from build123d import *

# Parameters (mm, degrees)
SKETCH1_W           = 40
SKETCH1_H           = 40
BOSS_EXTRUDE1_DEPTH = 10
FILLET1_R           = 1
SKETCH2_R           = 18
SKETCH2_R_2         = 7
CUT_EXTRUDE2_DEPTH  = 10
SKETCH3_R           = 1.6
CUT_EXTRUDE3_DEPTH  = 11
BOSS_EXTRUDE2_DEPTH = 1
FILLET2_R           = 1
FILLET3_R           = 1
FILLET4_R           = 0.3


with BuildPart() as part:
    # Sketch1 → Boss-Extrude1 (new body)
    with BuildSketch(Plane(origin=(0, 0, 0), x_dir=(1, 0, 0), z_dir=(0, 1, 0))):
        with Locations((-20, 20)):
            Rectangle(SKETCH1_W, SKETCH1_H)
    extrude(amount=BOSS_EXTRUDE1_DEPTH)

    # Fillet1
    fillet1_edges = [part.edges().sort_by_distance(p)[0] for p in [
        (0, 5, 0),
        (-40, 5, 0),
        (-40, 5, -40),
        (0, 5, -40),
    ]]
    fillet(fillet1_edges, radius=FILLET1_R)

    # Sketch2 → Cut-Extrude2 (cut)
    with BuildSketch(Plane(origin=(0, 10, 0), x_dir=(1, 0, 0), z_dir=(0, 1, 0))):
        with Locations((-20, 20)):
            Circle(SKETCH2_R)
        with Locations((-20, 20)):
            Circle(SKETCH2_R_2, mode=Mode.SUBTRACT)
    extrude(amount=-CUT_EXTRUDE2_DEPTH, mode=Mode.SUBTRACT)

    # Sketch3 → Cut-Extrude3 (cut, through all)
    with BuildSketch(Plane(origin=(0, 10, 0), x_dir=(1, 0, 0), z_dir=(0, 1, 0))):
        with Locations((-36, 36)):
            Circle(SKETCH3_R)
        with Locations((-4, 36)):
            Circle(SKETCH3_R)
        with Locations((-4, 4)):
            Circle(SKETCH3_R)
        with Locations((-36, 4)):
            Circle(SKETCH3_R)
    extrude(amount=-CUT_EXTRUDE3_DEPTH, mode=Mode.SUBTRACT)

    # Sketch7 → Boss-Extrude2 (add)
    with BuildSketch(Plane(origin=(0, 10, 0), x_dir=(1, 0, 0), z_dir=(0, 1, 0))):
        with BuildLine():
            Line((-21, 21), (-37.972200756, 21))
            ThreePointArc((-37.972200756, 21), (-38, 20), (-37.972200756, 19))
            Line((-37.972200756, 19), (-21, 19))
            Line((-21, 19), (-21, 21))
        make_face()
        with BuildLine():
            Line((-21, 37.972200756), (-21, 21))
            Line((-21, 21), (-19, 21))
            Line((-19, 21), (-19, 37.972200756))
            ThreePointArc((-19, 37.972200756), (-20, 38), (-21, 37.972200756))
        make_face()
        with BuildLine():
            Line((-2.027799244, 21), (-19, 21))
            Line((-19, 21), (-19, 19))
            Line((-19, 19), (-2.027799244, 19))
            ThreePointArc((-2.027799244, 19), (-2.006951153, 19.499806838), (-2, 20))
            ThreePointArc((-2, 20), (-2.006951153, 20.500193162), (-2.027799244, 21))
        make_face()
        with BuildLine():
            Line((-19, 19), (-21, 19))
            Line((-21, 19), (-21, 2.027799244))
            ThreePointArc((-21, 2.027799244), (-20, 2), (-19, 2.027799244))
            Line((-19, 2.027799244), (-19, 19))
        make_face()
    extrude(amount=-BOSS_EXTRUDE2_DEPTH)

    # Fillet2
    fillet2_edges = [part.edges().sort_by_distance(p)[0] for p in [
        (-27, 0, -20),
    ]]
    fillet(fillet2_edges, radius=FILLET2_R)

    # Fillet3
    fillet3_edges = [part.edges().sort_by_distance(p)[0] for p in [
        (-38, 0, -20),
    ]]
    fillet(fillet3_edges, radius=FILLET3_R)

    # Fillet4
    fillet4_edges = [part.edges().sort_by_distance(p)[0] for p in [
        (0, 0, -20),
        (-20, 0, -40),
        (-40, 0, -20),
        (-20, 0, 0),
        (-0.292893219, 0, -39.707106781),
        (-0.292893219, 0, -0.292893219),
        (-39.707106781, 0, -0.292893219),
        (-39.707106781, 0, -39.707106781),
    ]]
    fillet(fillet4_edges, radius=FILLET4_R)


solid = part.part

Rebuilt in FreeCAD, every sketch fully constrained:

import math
import FreeCAD as App
import Part
import Sketcher
Q = App.Units.Quantity


def edges_at(feature, points):
    """Names of the edges that pass closest to the given points."""
    edges = feature.Shape.Edges
    near = lambda p: min(range(len(edges)), key=lambda i: edges[i].distToShape(Part.Vertex(*p))[0])
    return sorted({f"Edge{near(p) + 1}" for p in points})


def add_polygon(sketch, points):
    """Adds a closed chain of lines whose ends are joined by coincident constraints."""
    first, n = sketch.GeometryCount, len(points)
    for a, b in zip(points, points[1:] + points[:1]):
        sketch.addGeometry(Part.LineSegment(App.Vector(*a, 0), App.Vector(*b, 0)), False)
    for i in range(n):
        sketch.addConstraint(Sketcher.Constraint("Coincident", first + i, 2, first + (i + 1) % n, 1))

doc = App.newDocument("Part")
body = doc.addObject("PartDesign::Body", "Body")
body.AllowCompound = True

sketch1 = doc.addObject("Sketcher::SketchObject", "Sketch")
body.addObject(sketch1)
sketch1.AttachmentSupport = (doc.XZ_Plane, [""])
sketch1.MapMode = "FlatFace"
add_polygon(sketch1, [(-40, -40), (-40, 0), (0, 0), (0, -40)])
sketch1.addConstraint(Sketcher.Constraint("Vertical", 0))
sketch1.addConstraint(Sketcher.Constraint("Horizontal", 1))
sketch1.addConstraint(Sketcher.Constraint("Vertical", 2))
sketch1.addConstraint(Sketcher.Constraint("Horizontal", 3))
sketch1.addConstraint(Sketcher.Constraint("Coincident", 1, 2, -1, 1))
sketch1.addConstraint(Sketcher.Constraint("Equal", 3, 0))
sketch1.addConstraint(Sketcher.Constraint("DistanceX", 1, 1, 1, 2, Q("40 mm")))
pad1 = doc.addObject("PartDesign::Pad", "Pad")
body.addObject(pad1)
pad1.Profile = sketch1
pad1.Length = 10
pad1.Reversed = True
doc.recompute()

fillet = doc.addObject("PartDesign::Fillet", "Fillet")
body.addObject(fillet)
fillet.Base = (pad1, edges_at(pad1, [
    (0, 5, 0),
    (-40, 5, 0),
    (-40, 5, -40),
    (0, 5, -40),
]))
fillet.Radius = 1

sketch2 = doc.addObject("Sketcher::SketchObject", "Sketch001")
body.addObject(sketch2)
sketch2.AttachmentSupport = (doc.XZ_Plane, [""])
sketch2.MapMode = "FlatFace"
sketch2.AttachmentOffset = App.Placement(App.Vector(0, 0, -10), App.Rotation())
sketch2.addGeometry(Part.Circle(App.Vector(-20, -20, 0), App.Vector(0, 0, 1), 18), False)
sketch2.addGeometry(Part.Circle(App.Vector(-20, -20, 0), App.Vector(0, 0, 1), 7), False)
sketch2.addConstraint(Sketcher.Constraint("Coincident", 1, 3, 0, 3))
sketch2.addConstraint(Sketcher.Constraint("Diameter", 0, Q("36 mm")))
sketch2.addConstraint(Sketcher.Constraint("Diameter", 1, Q("14 mm")))
sketch2.addConstraint(Sketcher.Constraint("DistanceX", 0, 3, -1, 1, Q("20 mm")))
sketch2.addConstraint(Sketcher.Constraint("DistanceY", 0, 3, -1, 1, Q("20 mm")))
pocket1 = doc.addObject("PartDesign::Pocket", "Pocket")
body.addObject(pocket1)
pocket1.Profile = sketch2
pocket1.Length = 10
pocket1.Reversed = True

sketch3 = doc.addObject("Sketcher::SketchObject", "Sketch002")
body.addObject(sketch3)
sketch3.AttachmentSupport = (doc.XZ_Plane, [""])
sketch3.MapMode = "FlatFace"
sketch3.AttachmentOffset = App.Placement(App.Vector(0, 0, -10), App.Rotation())
sketch3.addGeometry(Part.Circle(App.Vector(-36, -36, 0), App.Vector(0, 0, 1), 1.6), False)
sketch3.addGeometry(Part.Circle(App.Vector(-4, -36, 0), App.Vector(0, 0, 1), 1.6), False)
sketch3.addGeometry(Part.Circle(App.Vector(-4, -4, 0), App.Vector(0, 0, 1), 1.6), False)
sketch3.addGeometry(Part.Circle(App.Vector(-36, -4, 0), App.Vector(0, 0, 1), 1.6), False)
sketch3.addConstraint(Sketcher.Constraint("Equal", 0, 1))
sketch3.addConstraint(Sketcher.Constraint("Equal", 1, 2))
sketch3.addConstraint(Sketcher.Constraint("Equal", 2, 3))
sketch3.addConstraint(Sketcher.Constraint("Horizontal", 0, 3, 1, 3))
sketch3.addConstraint(Sketcher.Constraint("Horizontal", 2, 3, 3, 3))
sketch3.addConstraint(Sketcher.Constraint("Vertical", 1, 3, 2, 3))
sketch3.addConstraint(Sketcher.Constraint("Vertical", 0, 3, 3, 3))
sketch3.addConstraint(Sketcher.Constraint("Diameter", 0, Q("3.2 mm")))
sketch3.addConstraint(Sketcher.Constraint("DistanceX", 0, 3, -1, 1, Q("36 mm")))
sketch3.addConstraint(Sketcher.Constraint("DistanceY", 0, 3, -1, 1, Q("36 mm")))
sketch3.addConstraint(Sketcher.Constraint("DistanceX", 1, 3, -1, 1, Q("4 mm")))
sketch3.addConstraint(Sketcher.Constraint("DistanceY", 2, 3, -1, 1, Q("4 mm")))
pocket2 = doc.addObject("PartDesign::Pocket", "Pocket001")
body.addObject(pocket2)
pocket2.Profile = sketch3
pocket2.Type = "ThroughAll"
pocket2.Reversed = True

sketch4 = doc.addObject("Sketcher::SketchObject", "Sketch003")
body.addObject(sketch4)
sketch4.AttachmentSupport = (doc.XZ_Plane, [""])
sketch4.MapMode = "FlatFace"
sketch4.AttachmentOffset = App.Placement(App.Vector(0, 0, -10), App.Rotation())
sketch4.addGeometry(Part.LineSegment(App.Vector(-21, -21, 0), App.Vector(-38, -21, 0)), False)
sketch4.addGeometry(Part.ArcOfCircle(Part.Circle(App.Vector(-20, -20, 0), App.Vector(0, 0, 1), 18), math.radians(176.82), math.radians(183.18)), False)
sketch4.addGeometry(Part.LineSegment(App.Vector(-38, -19, 0), App.Vector(-21, -19, 0)), False)
sketch4.addGeometry(Part.LineSegment(App.Vector(-21, -19, 0), App.Vector(-21, -21, 0)), False)
sketch4.addGeometry(Part.LineSegment(App.Vector(-21, -38, 0), App.Vector(-21, -21, 0)), False)
sketch4.addGeometry(Part.LineSegment(App.Vector(-21, -21, 0), App.Vector(-19, -21, 0)), False)
sketch4.addGeometry(Part.LineSegment(App.Vector(-19, -21, 0), App.Vector(-19, -38, 0)), False)
sketch4.addGeometry(Part.ArcOfCircle(Part.Circle(App.Vector(-20, -20, 0), App.Vector(0, 0, 1), 18), math.radians(-93.18), math.radians(-86.82)), False)
sketch4.addGeometry(Part.LineSegment(App.Vector(-2, -21, 0), App.Vector(-19, -21, 0)), False)
sketch4.addGeometry(Part.LineSegment(App.Vector(-19, -21, 0), App.Vector(-19, -19, 0)), False)
sketch4.addGeometry(Part.LineSegment(App.Vector(-19, -19, 0), App.Vector(-2, -19, 0)), False)
sketch4.addGeometry(Part.ArcOfCircle(Part.Circle(App.Vector(-20, -20, 0), App.Vector(0, 0, 1), 18), math.radians(0), math.radians(3.18)), False)
sketch4.addGeometry(Part.ArcOfCircle(Part.Circle(App.Vector(-20, -20, 0), App.Vector(0, 0, 1), 18), math.radians(-3.18), math.radians(0)), False)
sketch4.addGeometry(Part.LineSegment(App.Vector(-19, -19, 0), App.Vector(-21, -19, 0)), False)
sketch4.addGeometry(Part.LineSegment(App.Vector(-21, -19, 0), App.Vector(-21, -2, 0)), False)
sketch4.addGeometry(Part.ArcOfCircle(Part.Circle(App.Vector(-20, -20, 0), App.Vector(0, 0, 1), 18), math.radians(86.82), math.radians(93.18)), False)
sketch4.addGeometry(Part.LineSegment(App.Vector(-19, -2, 0), App.Vector(-19, -19, 0)), False)
sketch4.addConstraint(Sketcher.Constraint("Coincident", 0, 2, 1, 2))
sketch4.addConstraint(Sketcher.Constraint("Coincident", 1, 1, 2, 1))
sketch4.addConstraint(Sketcher.Constraint("Coincident", 2, 2, 3, 1))
sketch4.addConstraint(Sketcher.Constraint("Coincident", 3, 2, 0, 1))
sketch4.addConstraint(Sketcher.Constraint("Coincident", 4, 2, 5, 1))
sketch4.addConstraint(Sketcher.Constraint("Coincident", 5, 2, 6, 1))
sketch4.addConstraint(Sketcher.Constraint("Coincident", 6, 2, 7, 2))
sketch4.addConstraint(Sketcher.Constraint("Coincident", 7, 1, 4, 1))
sketch4.addConstraint(Sketcher.Constraint("Coincident", 8, 2, 9, 1))
sketch4.addConstraint(Sketcher.Constraint("Coincident", 9, 2, 10, 1))
sketch4.addConstraint(Sketcher.Constraint("Coincident", 10, 2, 11, 2))
sketch4.addConstraint(Sketcher.Constraint("Tangent", 11, 1, 12, 2))
sketch4.addConstraint(Sketcher.Constraint("Coincident", 12, 1, 8, 1))
sketch4.addConstraint(Sketcher.Constraint("Coincident", 13, 2, 14, 1))
sketch4.addConstraint(Sketcher.Constraint("Coincident", 14, 2, 15, 2))
sketch4.addConstraint(Sketcher.Constraint("Coincident", 15, 1, 16, 1))
sketch4.addConstraint(Sketcher.Constraint("Coincident", 16, 2, 13, 1))
sketch4.addConstraint(Sketcher.Constraint("Horizontal", 0))
sketch4.addConstraint(Sketcher.Constraint("Horizontal", 2))
sketch4.addConstraint(Sketcher.Constraint("Vertical", 3))
sketch4.addConstraint(Sketcher.Constraint("Vertical", 4))
sketch4.addConstraint(Sketcher.Constraint("Horizontal", 5))
sketch4.addConstraint(Sketcher.Constraint("Vertical", 6))
sketch4.addConstraint(Sketcher.Constraint("Horizontal", 8))
sketch4.addConstraint(Sketcher.Constraint("Vertical", 9))
sketch4.addConstraint(Sketcher.Constraint("Horizontal", 10))
sketch4.addConstraint(Sketcher.Constraint("Horizontal", 13))
sketch4.addConstraint(Sketcher.Constraint("Vertical", 14))
sketch4.addConstraint(Sketcher.Constraint("Vertical", 16))
sketch4.addConstraint(Sketcher.Constraint("Coincident", 7, 3, 1, 3))
sketch4.addConstraint(Sketcher.Constraint("Coincident", 11, 3, 1, 3))
sketch4.addConstraint(Sketcher.Constraint("Coincident", 15, 3, 1, 3))
sketch4.addConstraint(Sketcher.Constraint("Coincident", 4, 2, 3, 2))
sketch4.addConstraint(Sketcher.Constraint("Coincident", 8, 2, 5, 2))
sketch4.addConstraint(Sketcher.Constraint("Coincident", 13, 2, 2, 2))
sketch4.addConstraint(Sketcher.Constraint("Coincident", 16, 2, 9, 2))
sketch4.addConstraint(Sketcher.Constraint("Equal", 1, 7))
sketch4.addConstraint(Sketcher.Constraint("Equal", 7, 11))
sketch4.addConstraint(Sketcher.Constraint("Equal", 11, 12))
sketch4.addConstraint(Sketcher.Constraint("Equal", 12, 15))
sketch4.addConstraint(Sketcher.Constraint("Horizontal", 6, 2, 7, 1))
sketch4.addConstraint(Sketcher.Constraint("Horizontal", 15, 3, 11, 1))
sketch4.addConstraint(Sketcher.Constraint("Vertical", 0, 2, 1, 1))
sketch4.addConstraint(Sketcher.Constraint("Equal", 13, 3))
sketch4.addConstraint(Sketcher.Constraint("Radius", 1, Q("18 mm")))
sketch4.addConstraint(Sketcher.Constraint("DistanceX", 5, 1, 5, 2, Q("2 mm")))
sketch4.addConstraint(Sketcher.Constraint("DistanceX", 1, 3, -1, 1, Q("20 mm")))
sketch4.addConstraint(Sketcher.Constraint("DistanceY", 1, 3, -1, 1, Q("20 mm")))
pad2 = doc.addObject("PartDesign::Pad", "Pad001")
body.addObject(pad2)
pad2.Profile = sketch4
pad2.Length = 1
doc.recompute()

fillet2 = doc.addObject("PartDesign::Fillet", "Fillet001")
body.addObject(fillet2)
fillet2.Base = (pad2, edges_at(pad2, [(-27, 0, -20)]))
fillet2.Radius = 1
doc.recompute()

fillet3 = doc.addObject("PartDesign::Fillet", "Fillet002")
body.addObject(fillet3)
fillet3.Base = (fillet2, edges_at(fillet2, [(-38, 0, -20)]))
fillet3.Radius = 1
doc.recompute()

fillet4 = doc.addObject("PartDesign::Fillet", "Fillet003")
body.addObject(fillet4)
fillet4.Base = (fillet3, edges_at(fillet3, [
    (0, 0, -20),
    (-20, 0, -40),
    (-40, 0, -20),
    (-20, 0, 0),
    (-0.293, 0, -39.707),
    (-0.293, 0, -0.293),
    (-39.707, 0, -0.293),
    (-39.707, 0, -39.707),
]))
fillet4.Radius = 0.3

doc.recompute()
